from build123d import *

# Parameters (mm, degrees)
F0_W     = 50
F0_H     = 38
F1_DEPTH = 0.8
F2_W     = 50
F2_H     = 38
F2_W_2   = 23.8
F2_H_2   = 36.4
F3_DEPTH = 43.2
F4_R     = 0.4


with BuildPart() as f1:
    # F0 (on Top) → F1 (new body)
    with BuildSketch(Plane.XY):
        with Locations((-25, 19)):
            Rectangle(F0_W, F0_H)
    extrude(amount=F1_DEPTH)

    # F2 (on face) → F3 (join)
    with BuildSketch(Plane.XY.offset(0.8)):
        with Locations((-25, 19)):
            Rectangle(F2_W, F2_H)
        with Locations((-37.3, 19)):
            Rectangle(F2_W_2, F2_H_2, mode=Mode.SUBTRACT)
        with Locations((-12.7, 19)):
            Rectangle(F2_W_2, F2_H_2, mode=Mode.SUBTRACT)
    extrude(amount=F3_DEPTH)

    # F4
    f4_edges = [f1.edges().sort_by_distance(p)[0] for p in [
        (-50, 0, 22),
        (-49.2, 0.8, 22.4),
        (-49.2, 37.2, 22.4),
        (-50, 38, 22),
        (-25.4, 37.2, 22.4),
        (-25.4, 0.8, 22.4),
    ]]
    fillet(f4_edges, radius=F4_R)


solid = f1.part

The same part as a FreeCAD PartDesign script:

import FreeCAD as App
import Part
import Sketcher
Q = App.Units.Quantity


def edges_at(feature, points):
    """Names of the edges that pass closest to the given points."""
    edges = feature.Shape.Edges
    near = lambda p: min(range(len(edges)), key=lambda i: edges[i].distToShape(Part.Vertex(*p))[0])
    return sorted({f"Edge{near(p) + 1}" for p in points})

doc = App.newDocument("Part")
body = doc.addObject("PartDesign::Body", "Body")

# Sketch on XY plane
sketch1 = body.newObject("Sketcher::SketchObject", "Sketch")
sketch1.AttachmentSupport = (doc.getObject("XY_Plane"), [""])
sketch1.MapMode = "FlatFace"
sketch1.addGeometry([
    Part.LineSegment(App.Vector(-50, 38, 0), App.Vector(-50, 0, 0)),
    Part.LineSegment(App.Vector(-50, 0, 0), App.Vector(0, 0, 0)),
    Part.LineSegment(App.Vector(0, 0, 0), App.Vector(0, 38, 0)),
    Part.LineSegment(App.Vector(0, 38, 0), App.Vector(-50, 38, 0)),
], False)
sketch1.addConstraint([
    Sketcher.Constraint("Coincident", 0, 2, 1, 1),
    Sketcher.Constraint("Coincident", 1, 2, 2, 1),
    Sketcher.Constraint("Coincident", 2, 2, 3, 1),
    Sketcher.Constraint("Coincident", 3, 2, 0, 1),
    Sketcher.Constraint("Vertical", 0),
    Sketcher.Constraint("Horizontal", 1),
    Sketcher.Constraint("Vertical", 2),
    Sketcher.Constraint("Horizontal", 3),
    Sketcher.Constraint("Coincident", 1, 2, -1, 1),
    Sketcher.Constraint("DistanceX", 1, 1, 1, 2, Q("50 mm")),
    Sketcher.Constraint("DistanceY", 0, 2, 0, 1, Q("38 mm")),
])
pad1 = body.newObject("PartDesign::Pad", "Pad")
pad1.Profile = sketch1
pad1.Length = 0.8

# Sketch on XY plane
sketch2 = body.newObject("Sketcher::SketchObject", "Sketch001")
sketch2.AttachmentSupport = (doc.getObject("XY_Plane"), [""])
sketch2.MapMode = "FlatFace"
sketch2.AttachmentOffset = App.Placement(App.Vector(0, 0, 0.8), App.Rotation())
sketch2.addGeometry([
    Part.LineSegment(App.Vector(-50, 38, 0), App.Vector(-50, 0, 0)),  # 0
    Part.LineSegment(App.Vector(-50, 0, 0), App.Vector(0, 0, 0)),  # 1
    Part.LineSegment(App.Vector(0, 0, 0), App.Vector(0, 38, 0)),  # 2
    Part.LineSegment(App.Vector(0, 38, 0), App.Vector(-50, 38, 0)),  # 3
    Part.LineSegment(App.Vector(-25, 1, 0), App.Vector(-49, 1, 0)),  # 4
    Part.LineSegment(App.Vector(-49, 1, 0), App.Vector(-49, 37, 0)),  # 5
    Part.LineSegment(App.Vector(-49, 37, 0), App.Vector(-25, 37, 0)),  # 6
    Part.LineSegment(App.Vector(-25, 37, 0), App.Vector(-25, 1, 0)),  # 7
    Part.LineSegment(App.Vector(-1, 1, 0), App.Vector(-25, 1, 0)),  # 8
    Part.LineSegment(App.Vector(-25, 1, 0), App.Vector(-25, 37, 0)),  # 9
    Part.LineSegment(App.Vector(-25, 37, 0), App.Vector(-1, 37, 0)),  # 10
    Part.LineSegment(App.Vector(-1, 37, 0), App.Vector(-1, 1, 0)),  # 11
], False)
sketch2.addConstraint([
    Sketcher.Constraint("Coincident", 0, 2, 1, 1),
    Sketcher.Constraint("Coincident", 1, 2, 2, 1),
    Sketcher.Constraint("Coincident", 2, 2, 3, 1),
    Sketcher.Constraint("Coincident", 3, 2, 0, 1),
    Sketcher.Constraint("Coincident", 4, 2, 5, 1),
    Sketcher.Constraint("Coincident", 5, 2, 6, 1),
    Sketcher.Constraint("Coincident", 6, 2, 7, 1),
    Sketcher.Constraint("Coincident", 7, 2, 4, 1),
    Sketcher.Constraint("Coincident", 8, 2, 9, 1),
    Sketcher.Constraint("Coincident", 9, 2, 10, 1),
    Sketcher.Constraint("Coincident", 10, 2, 11, 1),
    Sketcher.Constraint("Coincident", 11, 2, 8, 1),
    Sketcher.Constraint("Vertical", 0),
    Sketcher.Constraint("Horizontal", 1),
    Sketcher.Constraint("Vertical", 2),
    Sketcher.Constraint("Horizontal", 3),
    Sketcher.Constraint("Horizontal", 4),
    Sketcher.Constraint("Vertical", 5),
    Sketcher.Constraint("Horizontal", 6),
    Sketcher.Constraint("Vertical", 7),
    Sketcher.Constraint("Horizontal", 8),
    Sketcher.Constraint("Vertical", 9),
    Sketcher.Constraint("Horizontal", 10),
    Sketcher.Constraint("Vertical", 11),
    Sketcher.Constraint("Coincident", 1, 2, -1, 1),
    Sketcher.Constraint("Horizontal", 7, 2, 8, 2),
    Sketcher.Constraint("Horizontal", 6, 2, 9, 2),
    Sketcher.Constraint("Equal", 6, 8),
    Sketcher.Constraint("DistanceX", 1, 1, 1, 2, Q("50 mm")),
    Sketcher.Constraint("DistanceY", 0, 2, 0, 1, Q("38 mm")),
    Sketcher.Constraint("DistanceX", 4, 2, 4, 1, Q("23.8 mm")),
    Sketcher.Constraint("DistanceY", 5, 1, 5, 2, Q("36.4 mm")),
    Sketcher.Constraint("DistanceX", 4, 2, -1, 1, Q("49.2 mm")),
    Sketcher.Constraint("DistanceY", -1, 1, 4, 2, Q("0.8 mm")),
    Sketcher.Constraint("DistanceX", 8, 2, -1, 1, Q("24.6 mm")),
])
pad2 = body.newObject("PartDesign::Pad", "Pad001")
pad2.Profile = sketch2
pad2.Length = 43.2
doc.recompute()

fillet = body.newObject("PartDesign::Fillet", "Fillet")
fillet.Base = (pad2, edges_at(pad2, [
    (-50, 0, 22),
    (-49.2, 0.8, 22.4),
    (-49.2, 37.2, 22.4),
    (-50, 38, 22),
    (-25.4, 37.2, 22.4),
    (-25.4, 0.8, 22.4),
]))
fillet.Radius = 0.4

doc.recompute()
